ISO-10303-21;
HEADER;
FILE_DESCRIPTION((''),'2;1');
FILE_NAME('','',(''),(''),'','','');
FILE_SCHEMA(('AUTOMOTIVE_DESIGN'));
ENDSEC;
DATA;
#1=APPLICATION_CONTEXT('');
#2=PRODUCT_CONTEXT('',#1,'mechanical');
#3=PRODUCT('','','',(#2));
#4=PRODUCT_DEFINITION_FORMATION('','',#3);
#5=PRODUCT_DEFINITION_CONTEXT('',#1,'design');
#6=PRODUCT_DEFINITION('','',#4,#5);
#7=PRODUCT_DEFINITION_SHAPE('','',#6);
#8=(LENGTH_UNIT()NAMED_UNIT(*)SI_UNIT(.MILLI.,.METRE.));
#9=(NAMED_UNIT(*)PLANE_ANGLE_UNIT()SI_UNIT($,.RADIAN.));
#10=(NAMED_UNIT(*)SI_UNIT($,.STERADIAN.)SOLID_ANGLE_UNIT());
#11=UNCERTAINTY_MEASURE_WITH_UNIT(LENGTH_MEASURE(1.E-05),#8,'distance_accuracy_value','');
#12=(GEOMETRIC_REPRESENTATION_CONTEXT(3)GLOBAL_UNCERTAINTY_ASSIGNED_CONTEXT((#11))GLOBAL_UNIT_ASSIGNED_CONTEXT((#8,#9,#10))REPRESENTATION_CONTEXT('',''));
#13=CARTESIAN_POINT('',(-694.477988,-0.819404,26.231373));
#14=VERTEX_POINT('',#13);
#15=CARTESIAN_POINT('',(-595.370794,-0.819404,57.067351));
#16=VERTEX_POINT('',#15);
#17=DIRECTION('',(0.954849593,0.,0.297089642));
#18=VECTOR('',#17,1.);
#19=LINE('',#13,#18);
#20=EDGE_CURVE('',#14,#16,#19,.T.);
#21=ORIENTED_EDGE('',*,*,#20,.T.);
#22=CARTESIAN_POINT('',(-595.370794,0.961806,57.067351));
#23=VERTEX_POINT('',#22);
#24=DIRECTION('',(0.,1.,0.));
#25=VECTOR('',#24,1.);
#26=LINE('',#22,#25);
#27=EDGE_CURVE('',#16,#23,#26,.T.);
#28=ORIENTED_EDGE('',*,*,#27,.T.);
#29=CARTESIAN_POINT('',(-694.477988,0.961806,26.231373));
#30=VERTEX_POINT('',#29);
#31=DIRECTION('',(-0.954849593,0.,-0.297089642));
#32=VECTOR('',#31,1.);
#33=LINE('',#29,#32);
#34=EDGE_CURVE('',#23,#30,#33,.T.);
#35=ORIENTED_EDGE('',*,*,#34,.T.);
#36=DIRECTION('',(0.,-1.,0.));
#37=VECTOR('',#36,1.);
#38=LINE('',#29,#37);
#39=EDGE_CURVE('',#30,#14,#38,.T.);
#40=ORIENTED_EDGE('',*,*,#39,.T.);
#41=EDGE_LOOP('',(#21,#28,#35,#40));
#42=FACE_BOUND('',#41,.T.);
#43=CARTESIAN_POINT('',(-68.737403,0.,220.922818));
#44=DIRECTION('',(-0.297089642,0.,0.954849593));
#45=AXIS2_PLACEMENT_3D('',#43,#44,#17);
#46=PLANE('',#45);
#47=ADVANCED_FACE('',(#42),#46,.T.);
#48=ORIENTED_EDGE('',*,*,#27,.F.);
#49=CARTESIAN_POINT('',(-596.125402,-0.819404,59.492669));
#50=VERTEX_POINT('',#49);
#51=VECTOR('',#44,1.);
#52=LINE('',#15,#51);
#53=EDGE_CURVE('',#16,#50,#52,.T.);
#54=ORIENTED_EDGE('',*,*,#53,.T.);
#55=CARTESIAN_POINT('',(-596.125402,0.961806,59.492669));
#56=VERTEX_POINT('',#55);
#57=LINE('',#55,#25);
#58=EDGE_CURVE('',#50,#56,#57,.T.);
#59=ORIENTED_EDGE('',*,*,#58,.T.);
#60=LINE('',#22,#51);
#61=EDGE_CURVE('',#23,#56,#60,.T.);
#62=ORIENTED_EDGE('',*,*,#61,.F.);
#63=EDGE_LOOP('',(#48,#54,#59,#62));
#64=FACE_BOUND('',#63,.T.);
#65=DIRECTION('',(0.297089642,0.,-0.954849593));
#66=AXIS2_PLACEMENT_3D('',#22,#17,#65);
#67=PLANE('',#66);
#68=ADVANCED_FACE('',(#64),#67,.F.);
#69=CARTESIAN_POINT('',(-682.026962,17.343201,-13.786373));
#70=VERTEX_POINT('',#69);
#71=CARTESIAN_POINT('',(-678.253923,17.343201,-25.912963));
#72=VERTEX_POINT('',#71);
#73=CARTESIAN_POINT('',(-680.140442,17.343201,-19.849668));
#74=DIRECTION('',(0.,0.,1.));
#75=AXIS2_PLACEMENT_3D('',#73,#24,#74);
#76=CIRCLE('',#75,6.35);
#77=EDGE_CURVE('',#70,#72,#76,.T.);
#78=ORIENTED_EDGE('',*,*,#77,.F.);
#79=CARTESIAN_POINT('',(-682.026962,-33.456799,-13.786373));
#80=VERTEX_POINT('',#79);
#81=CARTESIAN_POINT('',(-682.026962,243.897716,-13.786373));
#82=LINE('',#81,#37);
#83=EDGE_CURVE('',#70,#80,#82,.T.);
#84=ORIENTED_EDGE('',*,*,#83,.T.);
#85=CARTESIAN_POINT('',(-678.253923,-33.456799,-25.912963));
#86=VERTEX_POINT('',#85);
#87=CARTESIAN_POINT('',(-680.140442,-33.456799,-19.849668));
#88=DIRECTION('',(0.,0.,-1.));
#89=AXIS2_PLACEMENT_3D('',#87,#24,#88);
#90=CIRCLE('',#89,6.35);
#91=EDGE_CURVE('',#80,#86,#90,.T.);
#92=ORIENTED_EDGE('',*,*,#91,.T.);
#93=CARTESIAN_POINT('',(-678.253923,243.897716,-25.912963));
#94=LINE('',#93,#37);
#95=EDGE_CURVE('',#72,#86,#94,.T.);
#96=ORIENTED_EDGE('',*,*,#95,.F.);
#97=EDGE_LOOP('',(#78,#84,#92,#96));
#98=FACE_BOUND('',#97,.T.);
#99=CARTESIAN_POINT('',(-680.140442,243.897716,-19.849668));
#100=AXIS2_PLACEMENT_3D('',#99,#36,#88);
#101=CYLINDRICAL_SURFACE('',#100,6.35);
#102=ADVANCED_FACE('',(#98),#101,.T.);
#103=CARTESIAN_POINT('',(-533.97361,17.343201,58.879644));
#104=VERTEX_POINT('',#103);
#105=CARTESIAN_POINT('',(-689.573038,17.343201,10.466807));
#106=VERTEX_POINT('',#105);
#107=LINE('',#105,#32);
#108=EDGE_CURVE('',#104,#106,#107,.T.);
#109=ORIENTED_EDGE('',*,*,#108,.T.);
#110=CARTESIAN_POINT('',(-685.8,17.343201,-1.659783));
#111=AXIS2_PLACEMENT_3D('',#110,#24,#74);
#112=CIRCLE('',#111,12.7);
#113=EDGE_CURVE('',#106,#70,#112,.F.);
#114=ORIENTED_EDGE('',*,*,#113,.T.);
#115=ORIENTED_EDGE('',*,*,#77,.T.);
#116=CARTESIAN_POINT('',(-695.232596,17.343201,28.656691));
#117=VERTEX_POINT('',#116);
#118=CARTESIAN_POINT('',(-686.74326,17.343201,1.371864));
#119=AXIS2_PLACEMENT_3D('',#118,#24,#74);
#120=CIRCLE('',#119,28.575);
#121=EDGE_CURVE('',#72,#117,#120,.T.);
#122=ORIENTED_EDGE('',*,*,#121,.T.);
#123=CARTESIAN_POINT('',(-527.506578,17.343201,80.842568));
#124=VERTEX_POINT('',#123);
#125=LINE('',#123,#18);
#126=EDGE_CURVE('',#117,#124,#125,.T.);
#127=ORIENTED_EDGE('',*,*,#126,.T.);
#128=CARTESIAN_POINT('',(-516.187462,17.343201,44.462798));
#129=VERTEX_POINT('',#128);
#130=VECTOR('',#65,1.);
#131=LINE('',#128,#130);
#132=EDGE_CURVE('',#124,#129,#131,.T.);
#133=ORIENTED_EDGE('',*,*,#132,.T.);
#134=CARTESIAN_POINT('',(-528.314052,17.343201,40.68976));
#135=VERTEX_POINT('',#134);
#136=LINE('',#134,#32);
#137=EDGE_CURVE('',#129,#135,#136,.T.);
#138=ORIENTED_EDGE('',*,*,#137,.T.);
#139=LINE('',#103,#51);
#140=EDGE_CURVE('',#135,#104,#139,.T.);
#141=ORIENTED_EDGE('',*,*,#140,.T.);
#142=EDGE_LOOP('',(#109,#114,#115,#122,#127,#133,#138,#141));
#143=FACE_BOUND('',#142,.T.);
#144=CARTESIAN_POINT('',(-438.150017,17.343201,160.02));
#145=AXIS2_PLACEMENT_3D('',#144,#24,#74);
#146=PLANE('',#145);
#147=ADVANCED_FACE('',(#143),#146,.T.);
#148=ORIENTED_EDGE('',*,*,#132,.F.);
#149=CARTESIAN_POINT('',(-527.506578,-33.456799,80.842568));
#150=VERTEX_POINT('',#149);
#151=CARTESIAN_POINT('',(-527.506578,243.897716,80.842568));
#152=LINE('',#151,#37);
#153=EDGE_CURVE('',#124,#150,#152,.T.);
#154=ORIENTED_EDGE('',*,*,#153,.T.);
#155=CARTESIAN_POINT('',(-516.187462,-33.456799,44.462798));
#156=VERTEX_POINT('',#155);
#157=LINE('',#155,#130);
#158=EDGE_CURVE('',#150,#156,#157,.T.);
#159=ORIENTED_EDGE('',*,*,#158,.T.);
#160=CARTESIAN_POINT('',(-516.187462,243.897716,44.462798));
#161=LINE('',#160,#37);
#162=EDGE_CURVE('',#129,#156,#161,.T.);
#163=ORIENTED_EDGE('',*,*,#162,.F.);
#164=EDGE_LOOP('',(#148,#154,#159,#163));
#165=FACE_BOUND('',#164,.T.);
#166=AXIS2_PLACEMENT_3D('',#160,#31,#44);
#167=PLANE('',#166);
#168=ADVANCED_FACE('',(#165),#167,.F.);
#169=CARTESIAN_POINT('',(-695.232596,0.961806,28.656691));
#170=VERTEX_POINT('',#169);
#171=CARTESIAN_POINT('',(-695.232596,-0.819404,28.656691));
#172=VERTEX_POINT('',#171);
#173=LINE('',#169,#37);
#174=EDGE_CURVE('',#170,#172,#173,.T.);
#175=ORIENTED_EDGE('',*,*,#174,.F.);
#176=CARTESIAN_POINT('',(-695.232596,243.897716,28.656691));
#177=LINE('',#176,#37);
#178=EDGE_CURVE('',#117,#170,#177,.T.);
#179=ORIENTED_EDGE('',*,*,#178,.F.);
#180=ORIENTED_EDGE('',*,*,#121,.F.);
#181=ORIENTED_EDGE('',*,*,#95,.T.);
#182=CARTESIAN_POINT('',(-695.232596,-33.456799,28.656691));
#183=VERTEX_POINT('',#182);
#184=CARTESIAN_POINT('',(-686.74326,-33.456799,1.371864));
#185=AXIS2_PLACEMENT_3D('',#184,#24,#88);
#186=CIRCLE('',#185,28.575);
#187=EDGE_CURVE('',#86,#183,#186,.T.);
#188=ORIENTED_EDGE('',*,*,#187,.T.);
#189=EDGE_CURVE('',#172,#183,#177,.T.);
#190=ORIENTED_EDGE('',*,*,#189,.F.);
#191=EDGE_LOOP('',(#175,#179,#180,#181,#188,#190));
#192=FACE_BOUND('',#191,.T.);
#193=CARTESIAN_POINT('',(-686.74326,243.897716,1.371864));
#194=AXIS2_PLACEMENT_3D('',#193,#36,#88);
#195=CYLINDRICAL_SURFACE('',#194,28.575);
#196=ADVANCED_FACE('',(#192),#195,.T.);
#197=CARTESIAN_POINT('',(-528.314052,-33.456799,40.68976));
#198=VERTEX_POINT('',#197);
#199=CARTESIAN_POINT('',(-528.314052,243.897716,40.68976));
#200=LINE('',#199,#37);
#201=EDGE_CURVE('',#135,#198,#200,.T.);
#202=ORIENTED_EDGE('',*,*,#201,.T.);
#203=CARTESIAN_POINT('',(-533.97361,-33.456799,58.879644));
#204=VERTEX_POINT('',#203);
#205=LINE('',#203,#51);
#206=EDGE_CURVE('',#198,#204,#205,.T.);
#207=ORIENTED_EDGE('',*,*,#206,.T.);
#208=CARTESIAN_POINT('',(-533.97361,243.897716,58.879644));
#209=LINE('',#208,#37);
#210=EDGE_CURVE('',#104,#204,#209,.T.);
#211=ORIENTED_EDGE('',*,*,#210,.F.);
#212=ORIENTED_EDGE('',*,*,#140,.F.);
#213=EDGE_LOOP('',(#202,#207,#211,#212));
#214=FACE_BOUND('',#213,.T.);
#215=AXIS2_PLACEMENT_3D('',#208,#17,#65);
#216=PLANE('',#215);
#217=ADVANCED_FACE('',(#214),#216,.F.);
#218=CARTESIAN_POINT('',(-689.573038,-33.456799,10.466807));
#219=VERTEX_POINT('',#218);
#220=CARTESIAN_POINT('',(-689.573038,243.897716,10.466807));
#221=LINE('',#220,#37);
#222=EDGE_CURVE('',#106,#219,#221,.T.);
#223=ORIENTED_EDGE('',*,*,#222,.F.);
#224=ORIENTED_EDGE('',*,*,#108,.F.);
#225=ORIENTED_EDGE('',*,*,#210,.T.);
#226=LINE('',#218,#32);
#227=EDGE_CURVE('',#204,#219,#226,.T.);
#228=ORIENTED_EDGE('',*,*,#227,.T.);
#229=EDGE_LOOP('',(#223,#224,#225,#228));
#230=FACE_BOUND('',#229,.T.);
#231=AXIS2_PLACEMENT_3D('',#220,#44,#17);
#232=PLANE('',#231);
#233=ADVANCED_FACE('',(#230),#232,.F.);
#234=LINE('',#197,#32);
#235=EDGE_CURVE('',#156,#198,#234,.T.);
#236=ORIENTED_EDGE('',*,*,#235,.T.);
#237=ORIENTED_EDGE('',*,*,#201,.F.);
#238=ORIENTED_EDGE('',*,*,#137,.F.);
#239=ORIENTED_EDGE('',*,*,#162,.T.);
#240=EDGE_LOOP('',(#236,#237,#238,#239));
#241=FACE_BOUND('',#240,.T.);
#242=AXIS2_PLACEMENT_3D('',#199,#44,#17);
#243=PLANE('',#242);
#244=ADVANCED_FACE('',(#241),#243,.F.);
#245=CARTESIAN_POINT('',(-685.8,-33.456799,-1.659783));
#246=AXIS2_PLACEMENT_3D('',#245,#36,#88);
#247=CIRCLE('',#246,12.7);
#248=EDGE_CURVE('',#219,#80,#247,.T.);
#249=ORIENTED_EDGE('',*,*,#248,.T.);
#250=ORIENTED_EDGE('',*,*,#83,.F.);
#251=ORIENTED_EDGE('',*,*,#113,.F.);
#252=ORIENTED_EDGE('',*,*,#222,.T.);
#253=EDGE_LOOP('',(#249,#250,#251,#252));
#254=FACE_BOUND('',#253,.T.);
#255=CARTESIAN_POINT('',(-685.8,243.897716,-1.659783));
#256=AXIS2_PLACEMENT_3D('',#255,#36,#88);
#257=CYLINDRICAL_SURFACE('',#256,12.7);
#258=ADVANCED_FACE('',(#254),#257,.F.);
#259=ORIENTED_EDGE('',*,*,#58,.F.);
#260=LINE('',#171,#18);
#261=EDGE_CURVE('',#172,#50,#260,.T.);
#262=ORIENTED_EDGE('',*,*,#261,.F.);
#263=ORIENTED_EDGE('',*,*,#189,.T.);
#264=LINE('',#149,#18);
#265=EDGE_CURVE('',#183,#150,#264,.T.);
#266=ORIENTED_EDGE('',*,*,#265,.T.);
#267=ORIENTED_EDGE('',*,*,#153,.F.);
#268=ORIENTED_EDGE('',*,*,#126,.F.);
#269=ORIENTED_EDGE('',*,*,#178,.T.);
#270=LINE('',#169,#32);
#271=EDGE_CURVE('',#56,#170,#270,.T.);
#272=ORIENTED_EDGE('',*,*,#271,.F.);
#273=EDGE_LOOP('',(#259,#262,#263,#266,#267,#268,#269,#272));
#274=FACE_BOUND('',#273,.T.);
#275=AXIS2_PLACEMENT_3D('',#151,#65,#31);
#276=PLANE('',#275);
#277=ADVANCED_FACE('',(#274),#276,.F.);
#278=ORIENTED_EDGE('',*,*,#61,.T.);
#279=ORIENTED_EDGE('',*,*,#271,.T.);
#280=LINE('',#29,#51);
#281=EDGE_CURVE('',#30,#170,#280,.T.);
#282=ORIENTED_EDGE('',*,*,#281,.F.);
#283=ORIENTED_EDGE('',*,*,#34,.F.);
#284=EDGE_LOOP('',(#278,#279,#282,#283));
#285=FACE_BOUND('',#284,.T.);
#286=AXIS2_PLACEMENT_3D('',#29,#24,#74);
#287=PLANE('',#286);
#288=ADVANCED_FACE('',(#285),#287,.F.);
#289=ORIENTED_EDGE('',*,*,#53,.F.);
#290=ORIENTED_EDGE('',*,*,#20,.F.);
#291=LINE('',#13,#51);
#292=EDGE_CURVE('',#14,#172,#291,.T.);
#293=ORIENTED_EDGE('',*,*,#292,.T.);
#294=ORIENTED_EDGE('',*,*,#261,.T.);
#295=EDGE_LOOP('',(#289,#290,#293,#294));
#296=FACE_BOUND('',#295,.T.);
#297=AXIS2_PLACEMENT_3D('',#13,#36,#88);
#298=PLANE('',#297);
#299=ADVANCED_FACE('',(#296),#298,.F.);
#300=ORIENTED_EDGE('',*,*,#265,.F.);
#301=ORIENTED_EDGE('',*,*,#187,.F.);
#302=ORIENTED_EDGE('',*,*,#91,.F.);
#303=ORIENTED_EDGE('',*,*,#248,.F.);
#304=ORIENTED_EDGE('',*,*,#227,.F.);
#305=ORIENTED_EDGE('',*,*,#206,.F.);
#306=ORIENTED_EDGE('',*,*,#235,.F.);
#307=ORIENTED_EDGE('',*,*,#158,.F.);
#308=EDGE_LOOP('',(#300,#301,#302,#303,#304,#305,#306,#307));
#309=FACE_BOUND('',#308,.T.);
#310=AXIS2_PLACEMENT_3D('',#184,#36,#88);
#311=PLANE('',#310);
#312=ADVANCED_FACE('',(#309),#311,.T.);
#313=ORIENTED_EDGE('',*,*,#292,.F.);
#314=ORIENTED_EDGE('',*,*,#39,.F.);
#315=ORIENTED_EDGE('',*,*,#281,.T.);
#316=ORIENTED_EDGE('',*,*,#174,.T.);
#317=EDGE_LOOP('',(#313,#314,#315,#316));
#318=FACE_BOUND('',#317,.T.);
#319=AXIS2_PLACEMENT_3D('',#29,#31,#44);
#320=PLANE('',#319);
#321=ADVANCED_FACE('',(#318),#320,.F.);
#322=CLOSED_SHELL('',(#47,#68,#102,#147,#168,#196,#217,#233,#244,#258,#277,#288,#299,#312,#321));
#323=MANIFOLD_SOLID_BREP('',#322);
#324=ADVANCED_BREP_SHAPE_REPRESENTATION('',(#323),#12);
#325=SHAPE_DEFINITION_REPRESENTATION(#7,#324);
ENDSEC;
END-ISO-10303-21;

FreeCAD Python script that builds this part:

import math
import FreeCAD as App
import Part
import Sketcher

V = App.Vector
Q = App.Units.Quantity


def add_polygon(sketch, points):
    """Adds a closed chain of lines whose ends are joined by coincident constraints."""
    first, n = sketch.GeometryCount, len(points)
    for a, b in zip(points, points[1:] + points[:1]):
        sketch.addGeometry(Part.LineSegment(App.Vector(*a, 0), App.Vector(*b, 0)), False)
    for i in range(n):
        sketch.addConstraint(Sketcher.Constraint("Coincident", first + i, 2, first + (i + 1) % n, 1))

doc = App.newDocument("Part")
body = doc.addObject("PartDesign::Body", "Body")

sketch1 = body.newObject("Sketcher::SketchObject", "Sketch")
sketch1.AttachmentSupport = (doc.getObject("XZ_Plane"), [""])
sketch1.MapMode = "FlatFace"
sketch1.AttachmentOffset = App.Placement(V(0, 0, 33.456799), App.Rotation())
sketch1.addGeometry([
    Part.LineSegment(V(-695.232596, 28.656691, 0), V(-527.506578, 80.842568, 0)),
    Part.LineSegment(V(-527.506578, 80.842568, 0), V(-516.187462, 44.462798, 0)),
    Part.LineSegment(V(-516.187462, 44.462798, 0), V(-528.314052, 40.68976, 0)),
    Part.LineSegment(V(-528.314052, 40.68976, 0), V(-533.97361, 58.879644, 0)),
    Part.LineSegment(V(-533.97361, 58.879644, 0), V(-689.573038, 10.466807, 0)),
    Part.ArcOfCircle(Part.Circle(V(-685.8, -1.659783, 0), V(0, 0, 1), 12.7), math.radians(107.282884), math.radians(287.282884)),
    Part.ArcOfCircle(Part.Circle(V(-680.140442, -19.849668, 0), V(0, 0, 1), 6.35), math.radians(-72.717116), math.radians(107.282884)),
    Part.ArcOfCircle(Part.Circle(V(-686.74326, 1.371864, 0), V(0, 0, 1), 28.575), math.radians(107.282884), math.radians(287.282884)),
], False)
sketch1.addConstraint([
    Sketcher.Constraint("Coincident", 0, 2, 1, 1),
    Sketcher.Constraint("Coincident", 1, 2, 2, 1),
    Sketcher.Constraint("Coincident", 2, 2, 3, 1),
    Sketcher.Constraint("Coincident", 3, 2, 4, 1),
    Sketcher.Constraint("Tangent", 4, 2, 5, 1),
    Sketcher.Constraint("Tangent", 5, 2, 6, 2),
    Sketcher.Constraint("Tangent", 6, 1, 7, 2),
    Sketcher.Constraint("Tangent", 7, 1, 0, 1),
    Sketcher.Constraint("Perpendicular", 0, 1),
    Sketcher.Constraint("Perpendicular", 1, 2),
    Sketcher.Constraint("Perpendicular", 2, 3),
    Sketcher.Constraint("Perpendicular", 3, 4),
    Sketcher.Constraint("Radius", 5, Q("0.5 in")),
    Sketcher.Constraint("Radius", 6, Q("0.25 in")),
    Sketcher.Constraint("DistanceX", 5, 3, -1, 1, Q("27 in")),
    Sketcher.Constraint("Radius", 7, Q("1.125 in")),
    Sketcher.Constraint("Distance", 1, Q("1.5 in")),
    Sketcher.Constraint("Distance", 2, Q("0.5 in")),
    Sketcher.Constraint("DistanceY", -1, 1, 1, 2, Q("44.462798 mm")),
    Sketcher.Constraint("DistanceX", 7, 3, 5, 2, Q("4.716298 mm")),
    Sketcher.Constraint("DistanceY", 6, 3, -1, 1, Q("19.849668 mm")),
    Sketcher.Constraint("DistanceX", 7, 3, -1, 1, Q("686.74326 mm")),
    Sketcher.Constraint("DistanceY", -1, 1, 2, 2, Q("40.68976 mm")),
])
pad1 = body.newObject("PartDesign::Pad", "Pad")
pad1.Profile = sketch1
pad1.Length = Q("2 in")
pad1.Reversed = True

sketch2 = body.newObject("Sketcher::SketchObject", "Sketch001")
sketch2.Placement = App.Placement(V(-69.49201, 0, 223.348136), App.Rotation(V(0.954849593, 0, 0.297089642), V(0, 1.000000001, 0), V(-0.297089642, 0, 0.954849593), "ZXY"))
add_polygon(sketch2, [(-655.328955, 0.961806), (-655.328955, -0.819404), (-551.535442, -0.819404), (-551.535442, 0.961806)])
sketch2.addConstraint([
    Sketcher.Constraint("Vertical", 0),
    Sketcher.Constraint("Horizontal", 1),
    Sketcher.Constraint("Vertical", 2),
    Sketcher.Constraint("Horizontal", 3),
    Sketcher.Constraint("DistanceY", 0, 2, 0, 1, Q("1.78121 mm")),
    Sketcher.Constraint("DistanceX", 1, 1, 1, 2, Q("103.793514 mm")),
    Sketcher.Constraint("DistanceX", 1, 2, -1, 1, Q("551.535442 mm")),
    Sketcher.Constraint("DistanceY", 0, 2, -1, 1, Q("0.819404 mm")),
])
pocket1 = body.newObject("PartDesign::Pocket", "Pocket")
pocket1.Profile = sketch2
pocket1.Length = Q("0.1 in")

doc.recompute()
